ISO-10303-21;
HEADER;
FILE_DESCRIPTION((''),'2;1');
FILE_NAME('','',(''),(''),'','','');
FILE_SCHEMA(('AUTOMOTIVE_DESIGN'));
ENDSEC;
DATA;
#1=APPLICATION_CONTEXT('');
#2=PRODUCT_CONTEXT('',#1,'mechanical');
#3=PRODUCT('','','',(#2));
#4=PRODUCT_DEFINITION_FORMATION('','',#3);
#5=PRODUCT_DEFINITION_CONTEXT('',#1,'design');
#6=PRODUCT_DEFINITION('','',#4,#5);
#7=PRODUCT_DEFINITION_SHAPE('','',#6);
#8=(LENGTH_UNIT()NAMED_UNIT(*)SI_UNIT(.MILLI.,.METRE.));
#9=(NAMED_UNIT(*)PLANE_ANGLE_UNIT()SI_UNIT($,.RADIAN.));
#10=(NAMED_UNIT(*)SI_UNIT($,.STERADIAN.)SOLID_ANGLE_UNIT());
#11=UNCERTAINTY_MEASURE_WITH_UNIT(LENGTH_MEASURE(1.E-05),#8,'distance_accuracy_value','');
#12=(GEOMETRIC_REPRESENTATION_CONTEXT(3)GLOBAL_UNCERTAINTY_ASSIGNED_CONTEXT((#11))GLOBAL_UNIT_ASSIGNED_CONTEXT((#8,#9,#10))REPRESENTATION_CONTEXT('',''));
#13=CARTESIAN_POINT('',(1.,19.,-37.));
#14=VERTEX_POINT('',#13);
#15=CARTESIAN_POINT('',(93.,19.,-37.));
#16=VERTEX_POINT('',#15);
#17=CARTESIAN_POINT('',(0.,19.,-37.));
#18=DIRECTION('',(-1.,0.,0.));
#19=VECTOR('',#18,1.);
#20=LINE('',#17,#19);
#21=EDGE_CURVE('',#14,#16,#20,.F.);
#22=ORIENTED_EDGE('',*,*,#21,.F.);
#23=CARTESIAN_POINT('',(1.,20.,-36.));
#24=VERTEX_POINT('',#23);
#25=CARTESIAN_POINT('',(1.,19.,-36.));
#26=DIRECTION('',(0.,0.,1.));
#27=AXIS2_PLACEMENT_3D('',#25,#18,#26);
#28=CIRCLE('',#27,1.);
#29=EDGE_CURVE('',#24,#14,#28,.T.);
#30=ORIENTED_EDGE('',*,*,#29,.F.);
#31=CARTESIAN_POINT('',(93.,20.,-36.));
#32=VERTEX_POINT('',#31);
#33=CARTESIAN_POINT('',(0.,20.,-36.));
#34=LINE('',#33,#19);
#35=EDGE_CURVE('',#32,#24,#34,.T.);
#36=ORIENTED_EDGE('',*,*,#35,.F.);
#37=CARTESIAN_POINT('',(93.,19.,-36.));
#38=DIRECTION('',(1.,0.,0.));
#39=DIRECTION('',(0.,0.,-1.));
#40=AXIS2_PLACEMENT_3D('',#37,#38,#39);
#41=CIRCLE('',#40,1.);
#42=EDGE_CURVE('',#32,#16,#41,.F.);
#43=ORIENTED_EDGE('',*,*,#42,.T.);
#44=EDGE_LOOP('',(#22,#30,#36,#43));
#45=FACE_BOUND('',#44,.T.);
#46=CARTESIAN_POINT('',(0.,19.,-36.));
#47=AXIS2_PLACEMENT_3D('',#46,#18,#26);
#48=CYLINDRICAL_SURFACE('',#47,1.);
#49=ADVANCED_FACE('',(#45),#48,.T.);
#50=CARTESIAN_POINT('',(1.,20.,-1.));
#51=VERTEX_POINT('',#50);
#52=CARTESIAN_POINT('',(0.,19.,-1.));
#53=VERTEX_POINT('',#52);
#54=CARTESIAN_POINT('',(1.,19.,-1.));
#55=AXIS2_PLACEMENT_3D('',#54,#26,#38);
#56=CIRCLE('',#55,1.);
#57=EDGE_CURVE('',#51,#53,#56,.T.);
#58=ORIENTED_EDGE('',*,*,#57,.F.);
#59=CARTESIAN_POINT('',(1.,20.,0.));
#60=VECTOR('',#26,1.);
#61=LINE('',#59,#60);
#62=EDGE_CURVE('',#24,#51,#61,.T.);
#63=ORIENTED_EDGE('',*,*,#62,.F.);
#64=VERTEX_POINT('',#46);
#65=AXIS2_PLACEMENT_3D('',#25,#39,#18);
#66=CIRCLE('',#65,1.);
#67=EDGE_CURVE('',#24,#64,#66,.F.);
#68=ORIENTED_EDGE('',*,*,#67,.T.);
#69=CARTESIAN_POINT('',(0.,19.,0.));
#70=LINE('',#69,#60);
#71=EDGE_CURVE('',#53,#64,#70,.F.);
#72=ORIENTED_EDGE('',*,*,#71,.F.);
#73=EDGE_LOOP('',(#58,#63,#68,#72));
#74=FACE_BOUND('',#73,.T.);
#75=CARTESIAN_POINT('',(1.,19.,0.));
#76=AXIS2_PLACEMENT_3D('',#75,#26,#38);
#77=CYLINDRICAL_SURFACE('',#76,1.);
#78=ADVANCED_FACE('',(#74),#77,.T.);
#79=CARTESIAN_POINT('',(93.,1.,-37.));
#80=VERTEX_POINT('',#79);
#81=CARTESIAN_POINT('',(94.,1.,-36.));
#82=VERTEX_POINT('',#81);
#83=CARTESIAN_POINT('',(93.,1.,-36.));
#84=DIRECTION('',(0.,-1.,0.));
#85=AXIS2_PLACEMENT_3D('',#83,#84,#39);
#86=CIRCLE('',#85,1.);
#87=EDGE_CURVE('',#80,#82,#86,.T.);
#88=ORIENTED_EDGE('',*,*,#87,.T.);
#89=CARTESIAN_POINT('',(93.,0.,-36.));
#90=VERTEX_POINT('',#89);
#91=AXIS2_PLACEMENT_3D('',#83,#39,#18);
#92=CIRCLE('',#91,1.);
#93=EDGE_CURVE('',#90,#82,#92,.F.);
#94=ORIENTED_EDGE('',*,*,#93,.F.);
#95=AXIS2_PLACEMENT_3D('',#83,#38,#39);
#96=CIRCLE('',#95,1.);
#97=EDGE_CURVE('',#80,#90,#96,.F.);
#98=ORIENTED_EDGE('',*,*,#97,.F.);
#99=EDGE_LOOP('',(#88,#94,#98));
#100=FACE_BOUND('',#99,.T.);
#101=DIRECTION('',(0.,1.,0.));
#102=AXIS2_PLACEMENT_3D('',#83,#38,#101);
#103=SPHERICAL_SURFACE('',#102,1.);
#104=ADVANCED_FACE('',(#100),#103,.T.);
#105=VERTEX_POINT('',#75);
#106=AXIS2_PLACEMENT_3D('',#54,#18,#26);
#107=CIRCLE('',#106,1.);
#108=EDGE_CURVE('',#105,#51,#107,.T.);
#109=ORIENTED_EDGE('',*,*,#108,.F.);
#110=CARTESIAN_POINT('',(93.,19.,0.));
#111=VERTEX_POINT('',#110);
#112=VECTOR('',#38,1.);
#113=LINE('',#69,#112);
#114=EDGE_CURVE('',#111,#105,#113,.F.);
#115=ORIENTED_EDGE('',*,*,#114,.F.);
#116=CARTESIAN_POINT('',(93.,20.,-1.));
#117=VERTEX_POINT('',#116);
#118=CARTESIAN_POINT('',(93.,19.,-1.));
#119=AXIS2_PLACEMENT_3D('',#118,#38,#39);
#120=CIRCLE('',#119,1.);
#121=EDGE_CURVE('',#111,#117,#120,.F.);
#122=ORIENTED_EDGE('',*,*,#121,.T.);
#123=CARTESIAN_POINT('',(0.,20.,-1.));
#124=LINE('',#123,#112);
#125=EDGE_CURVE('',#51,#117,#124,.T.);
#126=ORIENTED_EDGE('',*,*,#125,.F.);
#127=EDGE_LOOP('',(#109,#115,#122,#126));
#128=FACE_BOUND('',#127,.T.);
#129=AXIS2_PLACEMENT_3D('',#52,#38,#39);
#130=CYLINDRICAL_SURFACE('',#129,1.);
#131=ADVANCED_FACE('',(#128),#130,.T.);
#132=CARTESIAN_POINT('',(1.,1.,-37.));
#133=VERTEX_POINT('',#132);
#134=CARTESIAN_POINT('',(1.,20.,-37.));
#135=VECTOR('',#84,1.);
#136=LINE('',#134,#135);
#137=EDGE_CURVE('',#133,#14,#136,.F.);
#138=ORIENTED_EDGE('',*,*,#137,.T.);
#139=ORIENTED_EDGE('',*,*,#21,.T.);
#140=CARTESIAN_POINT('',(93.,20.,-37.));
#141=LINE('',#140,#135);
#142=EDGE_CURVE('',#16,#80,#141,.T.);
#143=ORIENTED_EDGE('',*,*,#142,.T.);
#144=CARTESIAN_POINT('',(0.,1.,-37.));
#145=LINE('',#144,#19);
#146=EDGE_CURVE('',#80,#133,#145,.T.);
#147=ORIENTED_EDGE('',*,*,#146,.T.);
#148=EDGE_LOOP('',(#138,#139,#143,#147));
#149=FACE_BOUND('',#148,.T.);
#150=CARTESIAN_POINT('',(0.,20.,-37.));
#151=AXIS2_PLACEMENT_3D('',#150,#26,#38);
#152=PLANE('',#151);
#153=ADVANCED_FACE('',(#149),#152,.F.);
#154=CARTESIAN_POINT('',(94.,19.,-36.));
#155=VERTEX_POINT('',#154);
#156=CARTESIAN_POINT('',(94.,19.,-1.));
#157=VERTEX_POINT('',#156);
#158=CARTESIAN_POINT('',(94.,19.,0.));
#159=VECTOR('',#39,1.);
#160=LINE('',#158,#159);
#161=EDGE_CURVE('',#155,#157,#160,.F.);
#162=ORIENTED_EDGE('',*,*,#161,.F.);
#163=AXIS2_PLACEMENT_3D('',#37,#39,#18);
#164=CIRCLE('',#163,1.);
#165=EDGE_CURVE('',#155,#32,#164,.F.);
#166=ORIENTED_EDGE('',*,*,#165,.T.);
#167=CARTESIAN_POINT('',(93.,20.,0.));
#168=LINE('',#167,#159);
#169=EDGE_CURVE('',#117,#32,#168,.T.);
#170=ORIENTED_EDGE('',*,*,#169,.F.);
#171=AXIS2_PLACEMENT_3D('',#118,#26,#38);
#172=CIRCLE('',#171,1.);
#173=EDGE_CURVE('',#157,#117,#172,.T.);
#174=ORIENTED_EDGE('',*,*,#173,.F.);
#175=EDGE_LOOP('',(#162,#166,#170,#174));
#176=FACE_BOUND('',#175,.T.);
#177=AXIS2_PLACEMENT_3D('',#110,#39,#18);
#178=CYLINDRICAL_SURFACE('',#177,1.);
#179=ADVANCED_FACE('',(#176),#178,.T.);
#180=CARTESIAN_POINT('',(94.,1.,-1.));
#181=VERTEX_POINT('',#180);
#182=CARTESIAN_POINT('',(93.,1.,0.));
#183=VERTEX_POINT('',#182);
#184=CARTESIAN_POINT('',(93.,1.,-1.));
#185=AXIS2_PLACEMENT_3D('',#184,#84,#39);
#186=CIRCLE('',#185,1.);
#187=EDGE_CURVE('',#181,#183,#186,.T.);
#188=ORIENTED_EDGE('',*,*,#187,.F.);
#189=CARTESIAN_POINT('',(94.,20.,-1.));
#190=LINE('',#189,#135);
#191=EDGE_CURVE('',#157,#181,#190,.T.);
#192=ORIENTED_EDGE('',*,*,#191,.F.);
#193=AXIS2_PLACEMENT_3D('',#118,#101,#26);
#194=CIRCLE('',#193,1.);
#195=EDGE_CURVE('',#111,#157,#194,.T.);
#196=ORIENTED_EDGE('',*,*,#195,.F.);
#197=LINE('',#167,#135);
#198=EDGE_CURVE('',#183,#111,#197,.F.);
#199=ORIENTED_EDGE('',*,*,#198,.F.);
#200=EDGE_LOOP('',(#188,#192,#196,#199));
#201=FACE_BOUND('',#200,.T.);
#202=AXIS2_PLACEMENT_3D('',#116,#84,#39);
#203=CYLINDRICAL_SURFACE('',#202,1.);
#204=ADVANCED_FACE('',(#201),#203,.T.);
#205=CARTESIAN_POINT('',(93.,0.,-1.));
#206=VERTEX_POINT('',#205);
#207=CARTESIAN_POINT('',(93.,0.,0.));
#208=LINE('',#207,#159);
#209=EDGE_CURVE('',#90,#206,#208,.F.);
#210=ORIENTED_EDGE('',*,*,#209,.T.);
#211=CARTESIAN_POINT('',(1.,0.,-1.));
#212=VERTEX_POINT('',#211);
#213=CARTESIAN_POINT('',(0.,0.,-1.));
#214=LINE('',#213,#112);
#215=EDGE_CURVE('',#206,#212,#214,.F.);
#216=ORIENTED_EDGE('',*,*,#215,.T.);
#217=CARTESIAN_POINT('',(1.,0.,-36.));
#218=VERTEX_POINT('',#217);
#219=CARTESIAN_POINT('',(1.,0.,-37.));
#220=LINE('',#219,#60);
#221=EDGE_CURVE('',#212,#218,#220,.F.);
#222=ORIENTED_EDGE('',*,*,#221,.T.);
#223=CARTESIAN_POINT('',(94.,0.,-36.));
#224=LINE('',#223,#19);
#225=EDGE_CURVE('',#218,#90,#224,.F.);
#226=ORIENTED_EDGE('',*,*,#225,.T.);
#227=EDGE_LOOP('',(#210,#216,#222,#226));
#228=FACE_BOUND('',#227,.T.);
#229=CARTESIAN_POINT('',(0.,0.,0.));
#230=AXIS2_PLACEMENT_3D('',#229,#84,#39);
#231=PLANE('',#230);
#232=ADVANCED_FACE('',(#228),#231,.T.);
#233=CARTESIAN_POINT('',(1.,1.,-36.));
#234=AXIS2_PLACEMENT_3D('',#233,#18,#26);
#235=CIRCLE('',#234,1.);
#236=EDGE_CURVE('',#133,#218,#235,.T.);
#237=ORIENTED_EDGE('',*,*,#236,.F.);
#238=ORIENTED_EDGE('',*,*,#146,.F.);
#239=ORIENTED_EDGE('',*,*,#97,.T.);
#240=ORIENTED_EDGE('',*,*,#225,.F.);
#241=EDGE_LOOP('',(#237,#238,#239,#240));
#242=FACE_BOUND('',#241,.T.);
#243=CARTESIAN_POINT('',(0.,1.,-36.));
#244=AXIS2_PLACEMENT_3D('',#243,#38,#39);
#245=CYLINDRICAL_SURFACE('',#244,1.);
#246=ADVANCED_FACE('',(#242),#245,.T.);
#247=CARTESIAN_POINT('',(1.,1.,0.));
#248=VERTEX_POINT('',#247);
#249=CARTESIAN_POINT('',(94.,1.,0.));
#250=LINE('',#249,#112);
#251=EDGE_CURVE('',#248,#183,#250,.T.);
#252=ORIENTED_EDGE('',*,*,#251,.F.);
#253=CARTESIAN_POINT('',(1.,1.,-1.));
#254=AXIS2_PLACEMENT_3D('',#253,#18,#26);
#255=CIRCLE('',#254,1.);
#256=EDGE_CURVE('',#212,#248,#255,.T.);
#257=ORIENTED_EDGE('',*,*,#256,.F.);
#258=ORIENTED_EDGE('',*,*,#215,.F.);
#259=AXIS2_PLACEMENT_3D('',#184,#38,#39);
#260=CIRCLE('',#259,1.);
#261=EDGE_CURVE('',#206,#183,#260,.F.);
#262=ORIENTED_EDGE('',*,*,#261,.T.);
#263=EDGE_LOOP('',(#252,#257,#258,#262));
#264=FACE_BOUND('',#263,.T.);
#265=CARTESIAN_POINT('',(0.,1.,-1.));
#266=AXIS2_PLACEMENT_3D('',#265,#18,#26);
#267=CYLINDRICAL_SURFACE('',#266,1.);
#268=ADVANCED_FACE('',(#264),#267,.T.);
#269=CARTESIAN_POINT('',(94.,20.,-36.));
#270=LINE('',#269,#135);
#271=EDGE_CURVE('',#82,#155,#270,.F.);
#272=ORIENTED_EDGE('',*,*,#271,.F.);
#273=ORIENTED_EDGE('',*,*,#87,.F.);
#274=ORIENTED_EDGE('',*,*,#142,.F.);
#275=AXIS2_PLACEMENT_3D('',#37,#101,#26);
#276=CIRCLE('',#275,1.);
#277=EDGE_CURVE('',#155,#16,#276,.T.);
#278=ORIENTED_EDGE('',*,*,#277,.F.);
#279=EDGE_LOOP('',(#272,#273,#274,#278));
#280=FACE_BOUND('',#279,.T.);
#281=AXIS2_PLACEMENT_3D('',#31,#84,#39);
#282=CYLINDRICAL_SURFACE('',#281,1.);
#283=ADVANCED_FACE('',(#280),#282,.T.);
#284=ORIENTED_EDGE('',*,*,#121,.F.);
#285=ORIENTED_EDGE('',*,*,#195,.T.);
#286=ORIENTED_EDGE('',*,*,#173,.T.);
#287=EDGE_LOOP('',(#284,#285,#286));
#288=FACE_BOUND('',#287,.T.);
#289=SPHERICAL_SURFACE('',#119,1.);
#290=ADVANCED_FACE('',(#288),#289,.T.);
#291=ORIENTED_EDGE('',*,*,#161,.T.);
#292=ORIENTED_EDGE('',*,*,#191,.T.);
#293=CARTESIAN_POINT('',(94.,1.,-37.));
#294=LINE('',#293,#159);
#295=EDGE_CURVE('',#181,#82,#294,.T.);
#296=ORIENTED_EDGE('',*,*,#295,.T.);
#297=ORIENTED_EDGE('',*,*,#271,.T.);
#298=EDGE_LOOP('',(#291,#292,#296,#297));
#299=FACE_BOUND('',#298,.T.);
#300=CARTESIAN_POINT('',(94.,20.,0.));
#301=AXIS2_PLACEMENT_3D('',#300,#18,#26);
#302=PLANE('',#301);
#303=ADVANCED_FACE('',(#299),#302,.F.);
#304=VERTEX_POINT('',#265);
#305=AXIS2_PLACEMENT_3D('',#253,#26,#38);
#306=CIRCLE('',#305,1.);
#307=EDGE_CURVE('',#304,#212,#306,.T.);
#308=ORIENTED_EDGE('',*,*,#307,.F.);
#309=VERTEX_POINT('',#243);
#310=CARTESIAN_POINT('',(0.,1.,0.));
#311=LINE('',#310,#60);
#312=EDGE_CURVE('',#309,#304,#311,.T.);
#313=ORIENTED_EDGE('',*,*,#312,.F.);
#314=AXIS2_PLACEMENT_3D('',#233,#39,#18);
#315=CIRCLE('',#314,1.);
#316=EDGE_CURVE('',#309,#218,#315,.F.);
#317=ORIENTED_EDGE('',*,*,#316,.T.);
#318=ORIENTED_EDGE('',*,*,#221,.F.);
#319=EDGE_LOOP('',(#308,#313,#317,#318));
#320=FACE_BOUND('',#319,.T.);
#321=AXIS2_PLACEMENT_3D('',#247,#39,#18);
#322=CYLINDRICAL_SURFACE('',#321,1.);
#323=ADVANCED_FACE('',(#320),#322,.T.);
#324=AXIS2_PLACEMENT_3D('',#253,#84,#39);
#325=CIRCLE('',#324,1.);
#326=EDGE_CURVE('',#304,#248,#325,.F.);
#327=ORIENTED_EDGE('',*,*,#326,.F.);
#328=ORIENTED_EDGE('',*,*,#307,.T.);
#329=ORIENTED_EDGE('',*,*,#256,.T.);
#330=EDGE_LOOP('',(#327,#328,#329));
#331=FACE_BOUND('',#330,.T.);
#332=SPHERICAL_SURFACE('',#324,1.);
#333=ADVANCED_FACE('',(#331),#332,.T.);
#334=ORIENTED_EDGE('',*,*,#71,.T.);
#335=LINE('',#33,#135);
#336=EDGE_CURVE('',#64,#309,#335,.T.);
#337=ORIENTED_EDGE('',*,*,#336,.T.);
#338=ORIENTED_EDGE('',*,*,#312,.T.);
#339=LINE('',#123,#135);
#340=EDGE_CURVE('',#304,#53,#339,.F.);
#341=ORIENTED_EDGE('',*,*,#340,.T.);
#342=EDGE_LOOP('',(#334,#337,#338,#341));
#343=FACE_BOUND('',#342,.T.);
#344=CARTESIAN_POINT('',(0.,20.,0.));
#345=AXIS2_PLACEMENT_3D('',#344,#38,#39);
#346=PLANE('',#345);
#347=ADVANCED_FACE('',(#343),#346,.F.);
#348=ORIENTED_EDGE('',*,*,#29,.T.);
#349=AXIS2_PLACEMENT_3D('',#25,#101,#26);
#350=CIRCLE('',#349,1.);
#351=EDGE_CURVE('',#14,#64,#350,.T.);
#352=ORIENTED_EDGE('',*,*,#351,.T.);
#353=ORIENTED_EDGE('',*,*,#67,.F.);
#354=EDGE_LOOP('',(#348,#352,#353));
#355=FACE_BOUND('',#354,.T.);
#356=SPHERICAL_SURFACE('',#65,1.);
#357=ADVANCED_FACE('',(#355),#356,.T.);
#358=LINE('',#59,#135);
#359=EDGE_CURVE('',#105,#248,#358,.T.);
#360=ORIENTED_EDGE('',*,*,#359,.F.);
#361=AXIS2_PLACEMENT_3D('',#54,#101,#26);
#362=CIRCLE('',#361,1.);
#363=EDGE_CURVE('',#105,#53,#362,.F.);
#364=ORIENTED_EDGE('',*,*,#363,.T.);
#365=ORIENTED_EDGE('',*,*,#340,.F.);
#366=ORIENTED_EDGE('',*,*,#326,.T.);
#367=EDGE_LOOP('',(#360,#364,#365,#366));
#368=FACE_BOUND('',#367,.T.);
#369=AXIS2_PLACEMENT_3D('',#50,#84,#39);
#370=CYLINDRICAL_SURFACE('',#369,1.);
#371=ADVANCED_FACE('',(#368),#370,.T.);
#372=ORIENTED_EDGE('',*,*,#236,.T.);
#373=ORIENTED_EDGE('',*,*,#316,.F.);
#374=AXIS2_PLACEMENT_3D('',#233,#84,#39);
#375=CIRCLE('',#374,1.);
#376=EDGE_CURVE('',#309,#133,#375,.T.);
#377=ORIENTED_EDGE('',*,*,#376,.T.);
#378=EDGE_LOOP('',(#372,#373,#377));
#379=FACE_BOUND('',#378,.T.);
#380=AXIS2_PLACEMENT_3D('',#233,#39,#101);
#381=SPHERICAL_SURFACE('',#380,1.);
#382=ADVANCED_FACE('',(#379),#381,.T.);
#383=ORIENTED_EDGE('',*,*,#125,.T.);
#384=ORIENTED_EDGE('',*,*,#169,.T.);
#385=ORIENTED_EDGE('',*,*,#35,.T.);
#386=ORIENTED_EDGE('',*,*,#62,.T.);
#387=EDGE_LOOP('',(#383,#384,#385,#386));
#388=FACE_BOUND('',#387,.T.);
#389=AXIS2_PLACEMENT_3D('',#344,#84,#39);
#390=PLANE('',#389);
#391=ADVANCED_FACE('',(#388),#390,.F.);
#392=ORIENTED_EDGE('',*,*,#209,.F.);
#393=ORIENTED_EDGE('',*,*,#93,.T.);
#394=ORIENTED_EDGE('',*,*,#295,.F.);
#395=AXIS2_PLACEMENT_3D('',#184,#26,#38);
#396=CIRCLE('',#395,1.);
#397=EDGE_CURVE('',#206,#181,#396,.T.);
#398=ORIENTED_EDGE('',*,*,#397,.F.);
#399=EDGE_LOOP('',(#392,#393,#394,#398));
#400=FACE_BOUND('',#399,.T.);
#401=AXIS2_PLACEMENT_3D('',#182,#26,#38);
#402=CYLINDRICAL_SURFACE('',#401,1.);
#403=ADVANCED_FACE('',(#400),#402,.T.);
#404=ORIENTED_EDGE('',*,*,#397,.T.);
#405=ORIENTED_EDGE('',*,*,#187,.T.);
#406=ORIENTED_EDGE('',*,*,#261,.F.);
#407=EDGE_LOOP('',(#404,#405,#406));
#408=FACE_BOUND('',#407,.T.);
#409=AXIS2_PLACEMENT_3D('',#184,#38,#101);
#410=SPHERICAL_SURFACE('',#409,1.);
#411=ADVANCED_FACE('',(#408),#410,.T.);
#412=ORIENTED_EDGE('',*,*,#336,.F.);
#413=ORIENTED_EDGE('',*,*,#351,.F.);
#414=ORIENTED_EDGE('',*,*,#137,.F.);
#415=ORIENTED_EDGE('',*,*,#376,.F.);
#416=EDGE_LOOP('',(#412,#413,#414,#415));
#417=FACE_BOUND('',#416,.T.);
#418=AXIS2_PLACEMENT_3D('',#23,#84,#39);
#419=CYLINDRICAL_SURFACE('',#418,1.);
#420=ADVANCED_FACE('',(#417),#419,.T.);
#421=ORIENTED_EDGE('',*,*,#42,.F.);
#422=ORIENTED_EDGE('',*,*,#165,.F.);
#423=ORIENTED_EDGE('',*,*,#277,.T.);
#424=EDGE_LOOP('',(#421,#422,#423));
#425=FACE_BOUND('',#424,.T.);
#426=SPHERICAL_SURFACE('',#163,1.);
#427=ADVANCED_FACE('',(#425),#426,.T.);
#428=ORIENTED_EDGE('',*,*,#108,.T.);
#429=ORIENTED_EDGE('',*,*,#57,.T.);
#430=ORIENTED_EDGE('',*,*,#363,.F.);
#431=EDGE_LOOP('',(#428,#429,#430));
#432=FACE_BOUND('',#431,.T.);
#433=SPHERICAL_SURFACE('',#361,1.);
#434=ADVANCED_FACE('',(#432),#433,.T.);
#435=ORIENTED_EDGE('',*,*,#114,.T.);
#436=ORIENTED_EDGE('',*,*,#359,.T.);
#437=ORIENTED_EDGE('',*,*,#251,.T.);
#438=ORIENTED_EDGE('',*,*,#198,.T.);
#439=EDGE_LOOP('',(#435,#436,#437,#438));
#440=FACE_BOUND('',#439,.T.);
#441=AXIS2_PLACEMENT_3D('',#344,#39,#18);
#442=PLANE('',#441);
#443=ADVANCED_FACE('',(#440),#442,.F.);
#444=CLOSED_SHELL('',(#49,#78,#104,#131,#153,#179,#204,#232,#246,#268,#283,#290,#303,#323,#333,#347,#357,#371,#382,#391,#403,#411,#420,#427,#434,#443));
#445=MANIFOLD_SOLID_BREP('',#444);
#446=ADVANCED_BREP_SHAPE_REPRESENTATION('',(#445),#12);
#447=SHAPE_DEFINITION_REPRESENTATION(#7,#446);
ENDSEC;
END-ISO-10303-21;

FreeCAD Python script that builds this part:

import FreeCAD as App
import Part
import Sketcher
from FreeCAD import Vector
Q = App.Units.Quantity


def add_polygon(sketch, points):
    """Adds a closed chain of lines whose ends are joined by coincident constraints."""
    first, n = sketch.GeometryCount, len(points)
    for a, b in zip(points, points[1:] + points[:1]):
        sketch.addGeometry(Part.LineSegment(App.Vector(*a, 0), App.Vector(*b, 0)), False)
    for i in range(n):
        sketch.addConstraint(Sketcher.Constraint("Coincident", first + i, 2, first + (i + 1) % n, 1))

doc = App.newDocument("Part")
body = doc.addObject("PartDesign::Body", "Body")

# Sketch on XZ plane
sketch1 = body.newObject("Sketcher::SketchObject", "Sketch")
sketch1.AttachmentSupport = (doc.getObject("XZ_Plane"), [""])
sketch1.MapMode = "FlatFace"
add_polygon(sketch1, [(0, -37), (0, 0), (94, 0), (94, -37)])  # lines 0-3
sketch1.addConstraint([
    Sketcher.Constraint("Vertical", 0),
    Sketcher.Constraint("Horizontal", 1),
    Sketcher.Constraint("Vertical", 2),
    Sketcher.Constraint("Horizontal", 3),
    Sketcher.Constraint("Coincident", 0, 2, -1, 1),
    Sketcher.Constraint("DistanceX", 1, 1, 1, 2, Q("94 mm")),
    Sketcher.Constraint("DistanceY", 0, 1, 0, 2, Q("37 mm")),
])
pad1 = body.newObject("PartDesign::Pad", "Pad")
pad1.Profile = sketch1
pad1.Length = 20
pad1.Reversed = True
doc.recompute()

fillet = body.newObject("PartDesign::Fillet", "Fillet")
fillet.Base = (pad1, ["Edge1"])
fillet.UseAllEdges = True
fillet.Radius = 1

doc.recompute()
